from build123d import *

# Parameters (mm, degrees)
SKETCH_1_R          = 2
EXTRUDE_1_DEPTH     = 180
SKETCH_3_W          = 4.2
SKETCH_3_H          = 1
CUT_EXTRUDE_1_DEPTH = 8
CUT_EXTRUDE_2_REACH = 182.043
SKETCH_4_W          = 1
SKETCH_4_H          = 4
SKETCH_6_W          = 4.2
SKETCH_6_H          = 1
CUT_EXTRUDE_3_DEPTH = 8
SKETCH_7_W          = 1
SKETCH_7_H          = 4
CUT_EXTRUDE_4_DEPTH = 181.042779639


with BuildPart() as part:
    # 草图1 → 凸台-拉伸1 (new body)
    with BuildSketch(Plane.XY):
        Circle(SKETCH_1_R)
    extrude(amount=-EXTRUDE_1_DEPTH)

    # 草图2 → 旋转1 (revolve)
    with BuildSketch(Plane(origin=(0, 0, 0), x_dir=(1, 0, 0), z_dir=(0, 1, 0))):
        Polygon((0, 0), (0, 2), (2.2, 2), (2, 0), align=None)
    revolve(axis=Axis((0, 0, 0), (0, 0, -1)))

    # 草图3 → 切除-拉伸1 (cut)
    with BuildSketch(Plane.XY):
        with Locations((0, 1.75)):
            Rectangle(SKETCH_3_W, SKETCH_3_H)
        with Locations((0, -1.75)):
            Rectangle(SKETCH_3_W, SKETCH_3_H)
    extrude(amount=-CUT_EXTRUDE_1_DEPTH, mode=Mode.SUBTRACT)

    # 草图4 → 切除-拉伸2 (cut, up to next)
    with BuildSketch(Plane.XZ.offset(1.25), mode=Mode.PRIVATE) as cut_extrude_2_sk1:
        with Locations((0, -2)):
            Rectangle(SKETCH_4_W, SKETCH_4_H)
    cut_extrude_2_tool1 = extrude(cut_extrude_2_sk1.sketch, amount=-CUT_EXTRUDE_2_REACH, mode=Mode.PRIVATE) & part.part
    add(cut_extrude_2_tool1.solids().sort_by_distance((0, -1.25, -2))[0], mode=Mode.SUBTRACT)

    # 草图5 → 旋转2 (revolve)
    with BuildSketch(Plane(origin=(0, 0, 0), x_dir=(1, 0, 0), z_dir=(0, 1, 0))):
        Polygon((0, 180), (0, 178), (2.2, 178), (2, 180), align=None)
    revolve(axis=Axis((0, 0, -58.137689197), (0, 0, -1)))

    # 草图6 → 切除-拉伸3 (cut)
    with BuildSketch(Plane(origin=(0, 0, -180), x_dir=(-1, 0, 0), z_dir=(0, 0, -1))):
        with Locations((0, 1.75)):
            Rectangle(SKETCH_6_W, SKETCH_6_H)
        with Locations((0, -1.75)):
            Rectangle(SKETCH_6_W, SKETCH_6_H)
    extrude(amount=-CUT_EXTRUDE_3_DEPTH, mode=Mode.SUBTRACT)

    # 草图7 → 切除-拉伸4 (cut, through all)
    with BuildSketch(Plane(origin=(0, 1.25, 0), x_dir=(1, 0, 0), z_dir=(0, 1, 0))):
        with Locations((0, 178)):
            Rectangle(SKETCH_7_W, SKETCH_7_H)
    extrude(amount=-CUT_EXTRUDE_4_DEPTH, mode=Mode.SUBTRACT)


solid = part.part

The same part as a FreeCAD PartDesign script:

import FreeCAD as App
import Part
import Sketcher
from FreeCAD import Vector


def add_polygon(sketch, points):
    """Adds a closed chain of lines whose ends are joined by coincident constraints."""
    first, n = sketch.GeometryCount, len(points)
    for a, b in zip(points, points[1:] + points[:1]):
        sketch.addGeometry(Part.LineSegment(App.Vector(*a, 0), App.Vector(*b, 0)), False)
    for i in range(n):
        sketch.addConstraint(Sketcher.Constraint("Coincident", first + i, 2, first + (i + 1) % n, 1))

doc = App.newDocument("Part")
body = doc.addObject("PartDesign::Body", "Body")

# Sketch on XY plane
sketch1 = doc.addObject("Sketcher::SketchObject", "Sketch")
body.addObject(sketch1)
sketch1.AttachmentSupport = (doc.XY_Plane, [""])
sketch1.MapMode = "FlatFace"
sketch1.addGeometry(Part.Circle(Vector(0, 0, 0), Vector(0, 0, 1), 2), False)
sketch1.addConstraint([
    Sketcher.Constraint("Coincident", 0, 3, -1, 1),
    Sketcher.Constraint("Diameter", 0, 4.0),
])
pad1 = doc.addObject("PartDesign::Pad", "Pad")
body.addObject(pad1)
pad1.Profile = sketch1
pad1.Length = 180
pad1.Reversed = True

# Sketch on XZ plane
sketch2 = doc.addObject("Sketcher::SketchObject", "Sketch001")
body.addObject(sketch2)
sketch2.AttachmentSupport = (doc.XZ_Plane, [""])
sketch2.MapMode = "FlatFace"
add_polygon(sketch2, [(0, -2), (0, 0), (2, 0), (2.2, -2)])  # lines 0-3
sketch2.addConstraint([
    Sketcher.Constraint("Vertical", 0),
    Sketcher.Constraint("Horizontal", 1),
    Sketcher.Constraint("Horizontal", 3),
    Sketcher.Constraint("Coincident", 0, 2, -1, 1),
    Sketcher.Constraint("Equal", 1, 0),
    Sketcher.Constraint("DistanceX", 1, 1, 1, 2, 2.0),
    Sketcher.Constraint("DistanceX", 3, 2, 3, 1, 2.2),
])
revolution = doc.addObject("PartDesign::Revolution", "Revolution")
body.addObject(revolution)
revolution.Profile = sketch2
revolution.ReferenceAxis = (sketch2, ["V_Axis"])
revolution.Angle = 360

# Sketch on XY plane
sketch3 = doc.addObject("Sketcher::SketchObject", "Sketch002")
body.addObject(sketch3)
sketch3.AttachmentSupport = (doc.XY_Plane, [""])
sketch3.MapMode = "FlatFace"
add_polygon(sketch3, [(-2.1, 2.2), (-2.1, 1.2), (2.1, 1.2), (2.1, 2.2)])  # lines 0-3
add_polygon(sketch3, [(-2.1, -1.2), (-2.1, -2.2), (2.1, -2.2), (2.1, -1.2)])  # lines 4-7
sketch3.addConstraint([
    Sketcher.Constraint("Vertical", 0),
    Sketcher.Constraint("Horizontal", 1),
    Sketcher.Constraint("Vertical", 2),
    Sketcher.Constraint("Horizontal", 3),
    Sketcher.Constraint("Vertical", 4),
    Sketcher.Constraint("Horizontal", 5),
    Sketcher.Constraint("Vertical", 6),
    Sketcher.Constraint("Horizontal", 7),
    Sketcher.Constraint("Symmetric", 2, 2, 4, 2, -1, 1),
    Sketcher.Constraint("Symmetric", 0, 2, 6, 2, -1, 1),
    Sketcher.Constraint("Vertical", 3, 2, 4, 2),
    Sketcher.Constraint("DistanceY", 0, 2, 0, 1, 1.0),
    Sketcher.Constraint("DistanceX", 1, 1, 1, 2, 4.2),
    Sketcher.Constraint("DistanceY", 4, 2, 0, 2, 3.5),
])
pocket1 = doc.addObject("PartDesign::Pocket", "Pocket")
body.addObject(pocket1)
pocket1.Profile = sketch3
pocket1.Length = 8

# Sketch on XZ plane
sketch4 = doc.addObject("Sketcher::SketchObject", "Sketch003")
body.addObject(sketch4)
sketch4.AttachmentSupport = (doc.XZ_Plane, [""])
sketch4.MapMode = "FlatFace"
sketch4.AttachmentOffset = App.Placement(Vector(0, 0, 1.25), App.Rotation())
add_polygon(sketch4, [(-0.5, 0), (-0.5, -4), (0.5, -4), (0.5, 0)])  # lines 0-3
sketch4.addConstraint([
    Sketcher.Constraint("Vertical", 0),
    Sketcher.Constraint("Horizontal", 1),
    Sketcher.Constraint("Vertical", 2),
    Sketcher.Constraint("Horizontal", 3),
    Sketcher.Constraint("Symmetric", 2, 2, 3, 2, -1, 1),
    Sketcher.Constraint("DistanceX", 1, 1, 1, 2, 1.0),
    Sketcher.Constraint("DistanceY", 0, 2, 0, 1, 4.0),
])
pocket2 = doc.addObject("PartDesign::Pocket", "Pocket001")
body.addObject(pocket2)
pocket2.Profile = sketch4
pocket2.Type = "UpToFirst"

# Sketch on XZ plane
sketch5 = doc.addObject("Sketcher::SketchObject", "Sketch004")
body.addObject(sketch5)
sketch5.AttachmentSupport = (doc.XZ_Plane, [""])
sketch5.MapMode = "FlatFace"
add_polygon(sketch5, [(0, -180), (0, -178), (2.2, -178), (2, -180)])  # lines 0-3
sketch5.addConstraint([
    Sketcher.Constraint("Vertical", 0),
    Sketcher.Constraint("Horizontal", 1),
    Sketcher.Constraint("Horizontal", 3),
    Sketcher.Constraint("PointOnObject", 0, 2, -2),
    Sketcher.Constraint("Equal", 3, 0),
    Sketcher.Constraint("DistanceX", 3, 2, 3, 1, 2.0),
    Sketcher.Constraint("DistanceX", 1, 1, 1, 2, 2.2),
    Sketcher.Constraint("DistanceY", 0, 2, -1, 1, 178.0),
])
revolution2 = doc.addObject("PartDesign::Revolution", "Revolution001")
body.addObject(revolution2)
revolution2.Profile = sketch5
revolution2.ReferenceAxis = (sketch5, ["V_Axis"])
revolution2.Angle = 360

# Sketch on XY plane
sketch6 = doc.addObject("Sketcher::SketchObject", "Sketch005")
body.addObject(sketch6)
sketch6.AttachmentSupport = (doc.XY_Plane, [""])
sketch6.MapMode = "FlatFace"
sketch6.AttachmentOffset = App.Placement(Vector(0, 0, -180), App.Rotation())
add_polygon(sketch6, [(2.1, 2.2), (2.1, 1.2), (-2.1, 1.2), (-2.1, 2.2)])  # lines 0-3
add_polygon(sketch6, [(2.1, -1.2), (2.1, -2.2), (-2.1, -2.2), (-2.1, -1.2)])  # lines 4-7
sketch6.addConstraint([
    Sketcher.Constraint("Vertical", 0),
    Sketcher.Constraint("Horizontal", 1),
    Sketcher.Constraint("Vertical", 2),
    Sketcher.Constraint("Horizontal", 3),
    Sketcher.Constraint("Vertical", 4),
    Sketcher.Constraint("Horizontal", 5),
    Sketcher.Constraint("Vertical", 6),
    Sketcher.Constraint("Horizontal", 7),
    Sketcher.Constraint("Symmetric", 2, 2, 4, 2, -1, 1),
    Sketcher.Constraint("Symmetric", 0, 2, 6, 2, -1, 1),
    Sketcher.Constraint("Vertical", 3, 2, 4, 2),
    Sketcher.Constraint("DistanceY", 0, 2, 0, 1, 1.0),
    Sketcher.Constraint("DistanceX", 1, 2, 1, 1, 4.2),
    Sketcher.Constraint("DistanceY", 4, 2, 0, 2, 3.5),
])
pocket3 = doc.addObject("PartDesign::Pocket", "Pocket002")
body.addObject(pocket3)
pocket3.Profile = sketch6
pocket3.Length = 8
pocket3.Reversed = True

# Sketch on XZ plane
sketch7 = doc.addObject("Sketcher::SketchObject", "Sketch006")
body.addObject(sketch7)
sketch7.AttachmentSupport = (doc.XZ_Plane, [""])
sketch7.MapMode = "FlatFace"
sketch7.AttachmentOffset = App.Placement(Vector(0, 0, -1.25), App.Rotation())
add_polygon(sketch7, [(-0.5, -180), (-0.5, -176), (0.5, -176), (0.5, -180)])  # lines 0-3
sketch7.addConstraint([
    Sketcher.Constraint("Vertical", 0),
    Sketcher.Constraint("Horizontal", 1),
    Sketcher.Constraint("Vertical", 2),
    Sketcher.Constraint("Horizontal", 3),
    Sketcher.Constraint("DistanceX", 1, 1, 1, 2, 1.0),
    Sketcher.Constraint("DistanceY", 0, 1, 0, 2, 4.0),
    Sketcher.Constraint("DistanceY", 0, 2, -1, 1, 176.0),
    Sketcher.Constraint("DistanceX", 0, 2, -1, 1, 0.5),
])
pocket4 = doc.addObject("PartDesign::Pocket", "Pocket003")
body.addObject(pocket4)
pocket4.Profile = sketch7
pocket4.Type = "ThroughAll"
pocket4.Reversed = True

doc.recompute()
